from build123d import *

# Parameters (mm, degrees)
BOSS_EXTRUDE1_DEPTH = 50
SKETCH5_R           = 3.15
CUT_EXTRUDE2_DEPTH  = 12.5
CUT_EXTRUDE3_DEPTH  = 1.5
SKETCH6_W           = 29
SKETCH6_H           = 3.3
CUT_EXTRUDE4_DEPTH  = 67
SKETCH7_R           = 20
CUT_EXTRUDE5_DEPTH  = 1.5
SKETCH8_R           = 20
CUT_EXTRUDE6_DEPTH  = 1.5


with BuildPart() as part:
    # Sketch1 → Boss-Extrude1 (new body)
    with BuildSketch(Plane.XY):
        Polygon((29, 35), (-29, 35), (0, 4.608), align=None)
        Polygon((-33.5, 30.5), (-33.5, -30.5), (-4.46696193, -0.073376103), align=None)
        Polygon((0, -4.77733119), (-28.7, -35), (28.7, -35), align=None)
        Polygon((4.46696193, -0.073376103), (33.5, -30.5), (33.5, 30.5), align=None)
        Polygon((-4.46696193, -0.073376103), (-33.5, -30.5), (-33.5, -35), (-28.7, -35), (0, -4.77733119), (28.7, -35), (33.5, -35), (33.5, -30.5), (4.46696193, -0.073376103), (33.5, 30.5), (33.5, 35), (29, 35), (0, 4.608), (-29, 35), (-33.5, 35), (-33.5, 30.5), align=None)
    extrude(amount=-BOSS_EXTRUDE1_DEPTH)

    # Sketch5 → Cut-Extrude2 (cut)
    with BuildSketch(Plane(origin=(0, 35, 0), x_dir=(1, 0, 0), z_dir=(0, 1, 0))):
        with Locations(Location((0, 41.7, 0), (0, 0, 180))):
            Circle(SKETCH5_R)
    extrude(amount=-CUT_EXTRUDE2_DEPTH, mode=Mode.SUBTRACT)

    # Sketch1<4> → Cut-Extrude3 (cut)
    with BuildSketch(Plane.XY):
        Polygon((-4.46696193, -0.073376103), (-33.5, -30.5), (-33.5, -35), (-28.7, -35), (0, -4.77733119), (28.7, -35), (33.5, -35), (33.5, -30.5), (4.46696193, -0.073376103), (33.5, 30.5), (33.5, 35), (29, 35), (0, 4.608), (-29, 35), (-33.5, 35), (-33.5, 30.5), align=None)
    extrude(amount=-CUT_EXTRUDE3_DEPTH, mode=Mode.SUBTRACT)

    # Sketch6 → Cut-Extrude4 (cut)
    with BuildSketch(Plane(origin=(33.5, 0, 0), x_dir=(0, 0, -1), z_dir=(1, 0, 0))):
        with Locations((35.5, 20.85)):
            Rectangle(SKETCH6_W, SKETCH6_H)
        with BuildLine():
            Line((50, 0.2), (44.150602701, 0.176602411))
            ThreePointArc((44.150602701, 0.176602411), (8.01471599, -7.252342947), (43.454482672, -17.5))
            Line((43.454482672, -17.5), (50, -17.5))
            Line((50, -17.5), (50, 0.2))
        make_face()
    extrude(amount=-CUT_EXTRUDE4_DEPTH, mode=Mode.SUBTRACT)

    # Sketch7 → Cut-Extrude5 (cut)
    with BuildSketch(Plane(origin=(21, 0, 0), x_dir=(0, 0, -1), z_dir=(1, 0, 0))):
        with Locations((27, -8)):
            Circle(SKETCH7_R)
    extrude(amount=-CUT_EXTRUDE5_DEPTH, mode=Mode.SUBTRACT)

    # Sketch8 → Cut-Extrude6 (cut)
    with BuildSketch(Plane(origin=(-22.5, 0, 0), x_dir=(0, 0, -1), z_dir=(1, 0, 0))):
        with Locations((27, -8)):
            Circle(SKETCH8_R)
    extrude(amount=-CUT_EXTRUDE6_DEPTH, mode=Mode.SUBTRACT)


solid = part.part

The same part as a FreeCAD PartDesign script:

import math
import FreeCAD as App
import Part
import Sketcher
from FreeCAD import Vector
Q = App.Units.Quantity

doc = App.newDocument("Part")
body = doc.addObject("PartDesign::Body", "Body")

sketch1 = doc.addObject("Sketcher::SketchObject", "Sketch")
body.addObject(sketch1)
sketch1.AttachmentSupport = (doc.XY_Plane, [""])
sketch1.MapMode = "FlatFace"
sketch1.addGeometry(Part.LineSegment(Vector(-33.5, 35, 0), Vector(-33.5, -35, 0)), False)
sketch1.addGeometry(Part.LineSegment(Vector(-33.5, -35, 0), Vector(33.5, -35, 0)), False)
sketch1.addGeometry(Part.LineSegment(Vector(33.5, -35, 0), Vector(33.5, 35, 0)), False)
sketch1.addGeometry(Part.LineSegment(Vector(33.5, 35, 0), Vector(-33.5, 35, 0)), False)
sketch1.addConstraint(Sketcher.Constraint("Coincident", 0, 2, 1, 1))
sketch1.addConstraint(Sketcher.Constraint("Coincident", 1, 2, 2, 1))
sketch1.addConstraint(Sketcher.Constraint("Coincident", 2, 2, 3, 1))
sketch1.addConstraint(Sketcher.Constraint("Coincident", 3, 2, 0, 1))
sketch1.addConstraint(Sketcher.Constraint("Vertical", 0))
sketch1.addConstraint(Sketcher.Constraint("Horizontal", 1))
sketch1.addConstraint(Sketcher.Constraint("Vertical", 2))
sketch1.addConstraint(Sketcher.Constraint("Horizontal", 3))
sketch1.addConstraint(Sketcher.Constraint("Symmetric", 0, 2, 2, 2, -1, 1))
sketch1.addConstraint(Sketcher.Constraint("DistanceX", 1, 1, 1, 2, Q("67 mm")))
sketch1.addConstraint(Sketcher.Constraint("DistanceY", 0, 2, 0, 1, Q("70 mm")))
pad1 = doc.addObject("PartDesign::Pad", "Pad")
body.addObject(pad1)
pad1.Profile = sketch1
pad1.Length = 50
pad1.Reversed = True

sketch2 = doc.addObject("Sketcher::SketchObject", "Sketch001")
body.addObject(sketch2)
sketch2.AttachmentSupport = (doc.XZ_Plane, [""])
sketch2.MapMode = "FlatFace"
sketch2.AttachmentOffset = App.Placement(Vector(0, 0, -35), App.Rotation())
sketch2.addGeometry(Part.Circle(Vector(0, -41.7, 0), Vector(0, 0, 1), 3.15), False)
sketch2.addConstraint(Sketcher.Constraint("PointOnObject", 0, 3, -2))
sketch2.addConstraint(Sketcher.Constraint("Diameter", 0, Q("6.3 mm")))
sketch2.addConstraint(Sketcher.Constraint("DistanceY", 0, 3, -1, 1, Q("41.7 mm")))
pocket1 = doc.addObject("PartDesign::Pocket", "Pocket")
body.addObject(pocket1)
pocket1.Profile = sketch2
pocket1.Length = 12.5
pocket1.Reversed = True

sketch3 = doc.addObject("Sketcher::SketchObject", "Sketch002")
body.addObject(sketch3)
sketch3.AttachmentSupport = (doc.XY_Plane, [""])
sketch3.MapMode = "FlatFace"
sketch3.addGeometry(Part.LineSegment(Vector(-4.466962, -0.073376, 0), Vector(-33.5, -30.5, 0)), False)
sketch3.addGeometry(Part.LineSegment(Vector(-33.5, -30.5, 0), Vector(-33.5, -35, 0)), False)
sketch3.addGeometry(Part.LineSegment(Vector(-33.5, -35, 0), Vector(-28.7, -35, 0)), False)
sketch3.addGeometry(Part.LineSegment(Vector(-28.7, -35, 0), Vector(0, -4.777331, 0)), False)
sketch3.addGeometry(Part.LineSegment(Vector(0, -4.777331, 0), Vector(28.7, -35, 0)), False)
sketch3.addGeometry(Part.LineSegment(Vector(28.7, -35, 0), Vector(33.5, -35, 0)), False)
sketch3.addGeometry(Part.LineSegment(Vector(33.5, -35, 0), Vector(33.5, -30.5, 0)), False)
sketch3.addGeometry(Part.LineSegment(Vector(33.5, -30.5, 0), Vector(4.466962, -0.073376, 0)), False)
sketch3.addGeometry(Part.LineSegment(Vector(4.466962, -0.073376, 0), Vector(33.5, 30.5, 0)), False)
sketch3.addGeometry(Part.LineSegment(Vector(33.5, 30.5, 0), Vector(33.5, 35, 0)), False)
sketch3.addGeometry(Part.LineSegment(Vector(33.5, 35, 0), Vector(29, 35, 0)), False)
sketch3.addGeometry(Part.LineSegment(Vector(29, 35, 0), Vector(0, 4.608, 0)), False)
sketch3.addGeometry(Part.LineSegment(Vector(0, 4.608, 0), Vector(-29, 35, 0)), False)
sketch3.addGeometry(Part.LineSegment(Vector(-29, 35, 0), Vector(-33.5, 35, 0)), False)
sketch3.addGeometry(Part.LineSegment(Vector(-33.5, 35, 0), Vector(-33.5, 30.5, 0)), False)
sketch3.addGeometry(Part.LineSegment(Vector(-33.5, 30.5, 0), Vector(-4.466962, -0.073376, 0)), False)
sketch3.addConstraint(Sketcher.Constraint("Coincident", 0, 2, 1, 1))
sketch3.addConstraint(Sketcher.Constraint("Coincident", 1, 2, 2, 1))
sketch3.addConstraint(Sketcher.Constraint("Coincident", 2, 2, 3, 1))
sketch3.addConstraint(Sketcher.Constraint("Coincident", 3, 2, 4, 1))
sketch3.addConstraint(Sketcher.Constraint("Coincident", 4, 2, 5, 1))
sketch3.addConstraint(Sketcher.Constraint("Coincident", 5, 2, 6, 1))
sketch3.addConstraint(Sketcher.Constraint("Coincident", 6, 2, 7, 1))
sketch3.addConstraint(Sketcher.Constraint("Coincident", 7, 2, 8, 1))
sketch3.addConstraint(Sketcher.Constraint("Coincident", 8, 2, 9, 1))
sketch3.addConstraint(Sketcher.Constraint("Coincident", 9, 2, 10, 1))
sketch3.addConstraint(Sketcher.Constraint("Coincident", 10, 2, 11, 1))
sketch3.addConstraint(Sketcher.Constraint("Coincident", 11, 2, 12, 1))
sketch3.addConstraint(Sketcher.Constraint("Coincident", 12, 2, 13, 1))
sketch3.addConstraint(Sketcher.Constraint("Coincident", 13, 2, 14, 1))
sketch3.addConstraint(Sketcher.Constraint("Coincident", 14, 2, 15, 1))
sketch3.addConstraint(Sketcher.Constraint("Coincident", 15, 2, 0, 1))
sketch3.addConstraint(Sketcher.Constraint("Vertical", 1))
sketch3.addConstraint(Sketcher.Constraint("Horizontal", 2))
sketch3.addConstraint(Sketcher.Constraint("Horizontal", 5))
sketch3.addConstraint(Sketcher.Constraint("Vertical", 6))
sketch3.addConstraint(Sketcher.Constraint("Vertical", 9))
sketch3.addConstraint(Sketcher.Constraint("Horizontal", 10))
sketch3.addConstraint(Sketcher.Constraint("Horizontal", 13))
sketch3.addConstraint(Sketcher.Constraint("Vertical", 14))
sketch3.addConstraint(Sketcher.Constraint("Symmetric", 0, 2, 8, 2, -1, 1))
sketch3.addConstraint(Sketcher.Constraint("Symmetric", 5, 2, 13, 2, -1, 1))
sketch3.addConstraint(Sketcher.Constraint("Symmetric", 2, 2, 4, 2, -2))
sketch3.addConstraint(Sketcher.Constraint("Symmetric", 0, 2, 6, 2, -2))
sketch3.addConstraint(Sketcher.Constraint("Symmetric", 10, 2, 12, 2, -2))
sketch3.addConstraint(Sketcher.Constraint("Symmetric", 7, 2, 15, 2, -2))
sketch3.addConstraint(Sketcher.Constraint("PointOnObject", 3, 2, -2))
sketch3.addConstraint(Sketcher.Constraint("PointOnObject", 11, 2, -2))
sketch3.addConstraint(Sketcher.Constraint("Parallel", 3, 8))
sketch3.addConstraint(Sketcher.Constraint("Parallel", 0, 11))
sketch3.addConstraint(Sketcher.Constraint("Parallel", 4, 15))
sketch3.addConstraint(Sketcher.Constraint("Equal", 13, 1))
sketch3.addConstraint(Sketcher.Constraint("DistanceX", 2, 1, 2, 2, Q("4.8 mm")))
sketch3.addConstraint(Sketcher.Constraint("DistanceX", 10, 2, 10, 1, Q("4.5 mm")))
sketch3.addConstraint(Sketcher.Constraint("DistanceY", 1, 2, -1, 1, Q("35 mm")))
sketch3.addConstraint(Sketcher.Constraint("DistanceX", -1, 1, 10, 2, Q("29 mm")))
sketch3.addConstraint(Sketcher.Constraint("DistanceY", -1, 1, 11, 2, Q("4.608 mm")))
sketch3.addConstraint(Sketcher.Constraint("Distance", 3, Q("41.678528 mm")))
pocket2 = doc.addObject("PartDesign::Pocket", "Pocket001")
body.addObject(pocket2)
pocket2.Profile = sketch3
pocket2.Length = 1.5

sketch4 = doc.addObject("Sketcher::SketchObject", "Sketch003")
body.addObject(sketch4)
sketch4.AttachmentSupport = (doc.YZ_Plane, [""])
sketch4.MapMode = "FlatFace"
sketch4.AttachmentOffset = App.Placement(Vector(0, 0, 33.5), App.Rotation())
sketch4.addGeometry(Part.LineSegment(Vector(22.5, -21, 0), Vector(19.2, -21, 0)), False)
sketch4.addGeometry(Part.LineSegment(Vector(19.2, -21, 0), Vector(19.2, -50, 0)), False)
sketch4.addGeometry(Part.LineSegment(Vector(19.2, -50, 0), Vector(22.5, -50, 0)), False)
sketch4.addGeometry(Part.LineSegment(Vector(22.5, -50, 0), Vector(22.5, -21, 0)), False)
sketch4.addGeometry(Part.LineSegment(Vector(0.2, -50, 0), Vector(0.176602, -44.150603, 0)), False)
sketch4.addGeometry(Part.ArcOfCircle(Part.Circle(Vector(-8, -27, 0), Vector(0, 0, 1), 19), math.radians(-64.510385), math.radians(240)), False)
sketch4.addGeometry(Part.LineSegment(Vector(-17.5, -43.454483, 0), Vector(-17.5, -50, 0)), False)
sketch4.addGeometry(Part.LineSegment(Vector(-17.5, -50, 0), Vector(0.2, -50, 0)), False)
sketch4.addConstraint(Sketcher.Constraint("Coincident", 0, 2, 1, 1))
sketch4.addConstraint(Sketcher.Constraint("Coincident", 1, 2, 2, 1))
sketch4.addConstraint(Sketcher.Constraint("Coincident", 2, 2, 3, 1))
sketch4.addConstraint(Sketcher.Constraint("Coincident", 3, 2, 0, 1))
sketch4.addConstraint(Sketcher.Constraint("Coincident", 4, 2, 5, 1))
sketch4.addConstraint(Sketcher.Constraint("Coincident", 5, 2, 6, 1))
sketch4.addConstraint(Sketcher.Constraint("Coincident", 6, 2, 7, 1))
sketch4.addConstraint(Sketcher.Constraint("Coincident", 7, 2, 4, 1))
sketch4.addConstraint(Sketcher.Constraint("Horizontal", 0))
sketch4.addConstraint(Sketcher.Constraint("Vertical", 1))
sketch4.addConstraint(Sketcher.Constraint("Horizontal", 2))
sketch4.addConstraint(Sketcher.Constraint("Vertical", 3))
sketch4.addConstraint(Sketcher.Constraint("Vertical", 6))
sketch4.addConstraint(Sketcher.Constraint("Horizontal", 7))
sketch4.addConstraint(Sketcher.Constraint("Horizontal", 2, 2, 6, 2))
sketch4.addConstraint(Sketcher.Constraint("Radius", 5, Q("19 mm")))
sketch4.addConstraint(Sketcher.Constraint("DistanceY", 1, 2, 1, 1, Q("29 mm")))
sketch4.addConstraint(Sketcher.Constraint("DistanceX", 0, 2, 0, 1, Q("3.3 mm")))
sketch4.addConstraint(Sketcher.Constraint("DistanceX", 7, 1, 7, 2, Q("17.7 mm")))
sketch4.addConstraint(Sketcher.Constraint("DistanceX", 5, 3, -1, 1, Q("8 mm")))
sketch4.addConstraint(Sketcher.Constraint("DistanceY", 5, 3, -1, 1, Q("27 mm")))
sketch4.addConstraint(Sketcher.Constraint("DistanceY", 0, 2, -1, 1, Q("21 mm")))
sketch4.addConstraint(Sketcher.Constraint("DistanceX", 5, 2, 2, 2, Q("40 mm")))
sketch4.addConstraint(Sketcher.Constraint("DistanceX", -1, 1, 0, 2, Q("19.2 mm")))
sketch4.addConstraint(Sketcher.Constraint("DistanceY", 4, 2, 5, 2, Q("0.69612 mm")))
pocket3 = doc.addObject("PartDesign::Pocket", "Pocket002")
body.addObject(pocket3)
pocket3.Profile = sketch4
pocket3.Length = 67

sketch5 = doc.addObject("Sketcher::SketchObject", "Sketch004")
body.addObject(sketch5)
sketch5.AttachmentSupport = (doc.YZ_Plane, [""])
sketch5.MapMode = "FlatFace"
sketch5.AttachmentOffset = App.Placement(Vector(0, 0, 21), App.Rotation())
sketch5.addGeometry(Part.Circle(Vector(-8, -27, 0), Vector(0, 0, 1), 20), False)
sketch5.addConstraint(Sketcher.Constraint("Diameter", 0, Q("40 mm")))
sketch5.addConstraint(Sketcher.Constraint("DistanceX", 0, 3, -1, 1, Q("8 mm")))
sketch5.addConstraint(Sketcher.Constraint("DistanceY", 0, 3, -1, 1, Q("27 mm")))
pocket4 = doc.addObject("PartDesign::Pocket", "Pocket003")
body.addObject(pocket4)
pocket4.Profile = sketch5
pocket4.Length = 1.5

sketch6 = doc.addObject("Sketcher::SketchObject", "Sketch005")
body.addObject(sketch6)
sketch6.AttachmentSupport = (doc.YZ_Plane, [""])
sketch6.MapMode = "FlatFace"
sketch6.AttachmentOffset = App.Placement(Vector(0, 0, -22.5), App.Rotation())
sketch6.addGeometry(Part.Circle(Vector(-8, -27, 0), Vector(0, 0, 1), 20), False)
sketch6.addConstraint(Sketcher.Constraint("Diameter", 0, Q("40 mm")))
sketch6.addConstraint(Sketcher.Constraint("DistanceX", 0, 3, -1, 1, Q("8 mm")))
sketch6.addConstraint(Sketcher.Constraint("DistanceY", 0, 3, -1, 1, Q("27 mm")))
pocket5 = doc.addObject("PartDesign::Pocket", "Pocket004")
body.addObject(pocket5)
pocket5.Profile = sketch6
pocket5.Length = 1.5

doc.recompute()
